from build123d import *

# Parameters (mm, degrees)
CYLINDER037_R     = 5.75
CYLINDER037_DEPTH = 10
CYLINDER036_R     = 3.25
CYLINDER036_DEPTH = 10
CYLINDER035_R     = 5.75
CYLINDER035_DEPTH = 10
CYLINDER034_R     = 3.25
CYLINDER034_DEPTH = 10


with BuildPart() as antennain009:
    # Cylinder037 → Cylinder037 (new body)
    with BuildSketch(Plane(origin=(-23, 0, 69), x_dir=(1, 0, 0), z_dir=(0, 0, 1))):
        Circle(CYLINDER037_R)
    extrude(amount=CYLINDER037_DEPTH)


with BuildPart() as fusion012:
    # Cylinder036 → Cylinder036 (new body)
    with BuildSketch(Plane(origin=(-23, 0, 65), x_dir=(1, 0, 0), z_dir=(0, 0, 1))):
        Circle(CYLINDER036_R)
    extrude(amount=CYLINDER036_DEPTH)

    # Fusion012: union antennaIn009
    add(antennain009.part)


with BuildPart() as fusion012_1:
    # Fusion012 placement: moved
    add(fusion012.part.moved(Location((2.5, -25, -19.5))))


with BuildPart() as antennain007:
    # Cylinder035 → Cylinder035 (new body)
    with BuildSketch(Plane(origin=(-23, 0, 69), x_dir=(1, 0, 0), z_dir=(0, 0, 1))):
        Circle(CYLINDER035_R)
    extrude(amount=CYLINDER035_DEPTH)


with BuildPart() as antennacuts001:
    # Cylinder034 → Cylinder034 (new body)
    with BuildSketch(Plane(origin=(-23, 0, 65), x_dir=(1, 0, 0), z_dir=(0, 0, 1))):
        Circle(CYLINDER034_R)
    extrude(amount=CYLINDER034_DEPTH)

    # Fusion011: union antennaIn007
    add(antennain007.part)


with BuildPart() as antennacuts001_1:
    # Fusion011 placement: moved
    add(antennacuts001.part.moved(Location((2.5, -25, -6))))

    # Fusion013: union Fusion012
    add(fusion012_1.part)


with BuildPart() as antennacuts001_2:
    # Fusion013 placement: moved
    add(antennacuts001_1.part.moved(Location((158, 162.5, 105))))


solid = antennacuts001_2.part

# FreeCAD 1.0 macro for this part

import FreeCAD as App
import Part
import Sketcher

V = App.Vector
Q = App.Units.Quantity

doc = App.newDocument("Part")
body = doc.addObject("PartDesign::Body", "Body")

sketch1 = body.newObject("Sketcher::SketchObject", "Sketch")
sketch1.AttachmentSupport = (doc.getObject("XY_Plane"), [""])
sketch1.MapMode = "FlatFace"
sketch1.AttachmentOffset = App.Placement(V(0, 0, 69), App.Rotation())
sketch1.addGeometry(Part.Circle(V(-23, 0, 0), V(0, 0, 1), 6), False)
sketch1.addConstraint([
    Sketcher.Constraint("PointOnObject", 0, 3, -1),
    Sketcher.Constraint("Diameter", 0, Q("11.5 mm")),
    Sketcher.Constraint("DistanceX", 0, 3, -1, 1, Q("23 mm")),
])
pad1 = body.newObject("PartDesign::Pad", "Pad")
pad1.Profile = sketch1
pad1.Length = 10
body2 = doc.addObject("PartDesign::Body", "Body001")

sketch2 = body2.newObject("Sketcher::SketchObject", "Sketch001")
sketch2.AttachmentSupport = (doc.getObject("XY_Plane001"), [""])
sketch2.MapMode = "FlatFace"
sketch2.AttachmentOffset = App.Placement(V(0, 0, 65), App.Rotation())
sketch2.addGeometry(Part.Circle(V(-23, 0, 0), V(0, 0, 1), 3.2), False)
sketch2.addConstraint([
    Sketcher.Constraint("PointOnObject", 0, 3, -1),
    Sketcher.Constraint("Diameter", 0, Q("6.5 mm")),
    Sketcher.Constraint("DistanceX", 0, 3, -1, 1, Q("23 mm")),
])
pad2 = body2.newObject("PartDesign::Pad", "Pad001")
pad2.Profile = sketch2
pad2.Length = 10
doc.recompute()

boolean = body2.newObject("PartDesign::Boolean", "Boolean")
boolean.Type = "Fuse"
boolean.addObjects([body])
body3 = doc.addObject("PartDesign::Body", "Body002")
doc.recompute()

body2.Placement = App.Placement(V(2.5, -25, -19.5), App.Rotation(V(0, 0, 1), 0))
boolean2 = body3.newObject("PartDesign::Boolean", "Boolean001")
boolean2.Type = "Fuse"
boolean2.addObjects([body2])
body4 = doc.addObject("PartDesign::Body", "Body003")

sketch3 = body4.newObject("Sketcher::SketchObject", "Sketch002")
sketch3.AttachmentSupport = (doc.getObject("XY_Plane003"), [""])
sketch3.MapMode = "FlatFace"
sketch3.AttachmentOffset = App.Placement(V(0, 0, 69), App.Rotation())
sketch3.addGeometry(Part.Circle(V(-23, 0, 0), V(0, 0, 1), 6), False)
sketch3.addConstraint([
    Sketcher.Constraint("PointOnObject", 0, 3, -1),
    Sketcher.Constraint("Diameter", 0, Q("11.5 mm")),
    Sketcher.Constraint("DistanceX", 0, 3, -1, 1, Q("23 mm")),
])
pad3 = body4.newObject("PartDesign::Pad", "Pad002")
pad3.Profile = sketch3
pad3.Length = 10
body5 = doc.addObject("PartDesign::Body", "Body004")

sketch4 = body5.newObject("Sketcher::SketchObject", "Sketch003")
sketch4.AttachmentSupport = (doc.getObject("XY_Plane004"), [""])
sketch4.MapMode = "FlatFace"
sketch4.AttachmentOffset = App.Placement(V(0, 0, 65), App.Rotation())
sketch4.addGeometry(Part.Circle(V(-23, 0, 0), V(0, 0, 1), 3.2), False)
sketch4.addConstraint([
    Sketcher.Constraint("PointOnObject", 0, 3, -1),
    Sketcher.Constraint("Diameter", 0, Q("6.5 mm")),
    Sketcher.Constraint("DistanceX", 0, 3, -1, 1, Q("23 mm")),
])
pad4 = body5.newObject("PartDesign::Pad", "Pad003")
pad4.Profile = sketch4
pad4.Length = 10
doc.recompute()

boolean3 = body5.newObject("PartDesign::Boolean", "Boolean002")
boolean3.Type = "Fuse"
boolean3.addObjects([body4])
body6 = doc.addObject("PartDesign::Body", "Body005")
doc.recompute()

body5.Placement = App.Placement(V(2.5, -25, -6), App.Rotation(V(0, 0, 1), 0))
boolean4 = body6.newObject("PartDesign::Boolean", "Boolean003")
boolean4.Type = "Fuse"
boolean4.addObjects([body5])
doc.recompute()

boolean5 = body6.newObject("PartDesign::Boolean", "Boolean004")
boolean5.Type = "Fuse"
boolean5.addObjects([body3])
body7 = doc.addObject("PartDesign::Body", "Body006")
doc.recompute()

body6.Placement = App.Placement(V(158, 162.5, 105), App.Rotation(V(0, 0, 1), 0))
boolean6 = body7.newObject("PartDesign::Boolean", "Boolean005")
boolean6.Type = "Fuse"
boolean6.addObjects([body6])

doc.recompute()
